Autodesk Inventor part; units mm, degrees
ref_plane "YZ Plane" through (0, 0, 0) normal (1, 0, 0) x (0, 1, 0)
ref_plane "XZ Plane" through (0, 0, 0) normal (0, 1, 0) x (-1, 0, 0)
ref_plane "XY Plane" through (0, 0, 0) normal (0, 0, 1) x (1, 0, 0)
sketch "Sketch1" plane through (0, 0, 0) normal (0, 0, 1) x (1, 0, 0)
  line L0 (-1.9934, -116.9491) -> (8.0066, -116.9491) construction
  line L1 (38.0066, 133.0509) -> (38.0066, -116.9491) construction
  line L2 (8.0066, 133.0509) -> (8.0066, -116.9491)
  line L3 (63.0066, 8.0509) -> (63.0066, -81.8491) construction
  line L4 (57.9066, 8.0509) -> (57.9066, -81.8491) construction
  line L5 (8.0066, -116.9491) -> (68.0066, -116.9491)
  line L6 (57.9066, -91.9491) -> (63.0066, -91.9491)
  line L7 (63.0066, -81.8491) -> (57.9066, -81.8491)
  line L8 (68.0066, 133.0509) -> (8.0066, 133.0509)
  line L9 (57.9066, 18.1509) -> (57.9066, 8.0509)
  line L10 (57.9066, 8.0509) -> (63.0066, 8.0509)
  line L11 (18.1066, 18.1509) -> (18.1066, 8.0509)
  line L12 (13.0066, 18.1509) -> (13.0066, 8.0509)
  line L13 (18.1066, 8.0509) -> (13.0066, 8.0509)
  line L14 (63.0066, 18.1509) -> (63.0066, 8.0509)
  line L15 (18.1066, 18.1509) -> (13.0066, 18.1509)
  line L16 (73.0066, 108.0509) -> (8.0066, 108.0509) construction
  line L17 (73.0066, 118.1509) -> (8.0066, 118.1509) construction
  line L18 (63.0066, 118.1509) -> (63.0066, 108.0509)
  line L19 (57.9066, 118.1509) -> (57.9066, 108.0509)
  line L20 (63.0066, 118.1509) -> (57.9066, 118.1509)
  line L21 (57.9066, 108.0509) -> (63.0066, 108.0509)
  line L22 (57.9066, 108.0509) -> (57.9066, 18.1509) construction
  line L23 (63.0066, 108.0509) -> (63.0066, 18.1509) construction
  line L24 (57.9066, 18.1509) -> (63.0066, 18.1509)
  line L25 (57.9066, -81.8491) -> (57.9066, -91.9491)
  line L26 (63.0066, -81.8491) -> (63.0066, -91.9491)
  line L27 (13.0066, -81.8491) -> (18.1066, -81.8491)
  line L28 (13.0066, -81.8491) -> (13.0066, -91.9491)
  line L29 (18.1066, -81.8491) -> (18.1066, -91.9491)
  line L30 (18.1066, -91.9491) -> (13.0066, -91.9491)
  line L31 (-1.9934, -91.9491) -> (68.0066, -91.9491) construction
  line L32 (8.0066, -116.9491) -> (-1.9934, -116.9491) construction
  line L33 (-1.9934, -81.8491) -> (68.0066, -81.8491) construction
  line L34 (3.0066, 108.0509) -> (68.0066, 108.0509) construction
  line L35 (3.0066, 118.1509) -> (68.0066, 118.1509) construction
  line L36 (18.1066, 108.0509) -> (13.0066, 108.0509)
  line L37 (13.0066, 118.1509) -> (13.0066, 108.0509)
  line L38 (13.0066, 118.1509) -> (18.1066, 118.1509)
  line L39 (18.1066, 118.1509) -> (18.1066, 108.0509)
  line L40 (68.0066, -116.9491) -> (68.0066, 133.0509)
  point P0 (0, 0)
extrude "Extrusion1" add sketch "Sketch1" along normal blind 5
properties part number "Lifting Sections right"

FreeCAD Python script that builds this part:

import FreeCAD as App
import Part
import Sketcher
Q = App.Units.Quantity

doc = App.newDocument("Part")
body = doc.addObject("PartDesign::Body", "Body")

# Sketch on XY plane
sketch1 = body.newObject("Sketcher::SketchObject", "Sketch")
sketch1.AttachmentSupport = (doc.getObject("XY_Plane"), [""])
sketch1.MapMode = "FlatFace"
sketch1.addGeometry(Part.LineSegment(App.Vector(68, 133, 0), App.Vector(8, 133, 0)), False)
sketch1.addGeometry(Part.LineSegment(App.Vector(8, 133, 0), App.Vector(8, -117, 0)), False)
sketch1.addGeometry(Part.LineSegment(App.Vector(8, -117, 0), App.Vector(68, -117, 0)), False)
sketch1.addGeometry(Part.LineSegment(App.Vector(68, -117, 0), App.Vector(68, 133, 0)), False)
sketch1.addGeometry(Part.LineSegment(App.Vector(13, -92, 0), App.Vector(13, -82, 0)), False)
sketch1.addGeometry(Part.LineSegment(App.Vector(13, -82, 0), App.Vector(18, -82, 0)), False)
sketch1.addGeometry(Part.LineSegment(App.Vector(18, -82, 0), App.Vector(18, -92, 0)), False)
sketch1.addGeometry(Part.LineSegment(App.Vector(18, -92, 0), App.Vector(13, -92, 0)), False)
sketch1.addGeometry(Part.LineSegment(App.Vector(63, -92, 0), App.Vector(58, -92, 0)), False)
sketch1.addGeometry(Part.LineSegment(App.Vector(58, -92, 0), App.Vector(58, -82, 0)), False)
sketch1.addGeometry(Part.LineSegment(App.Vector(58, -82, 0), App.Vector(63, -82, 0)), False)
sketch1.addGeometry(Part.LineSegment(App.Vector(63, -82, 0), App.Vector(63, -92, 0)), False)
sketch1.addGeometry(Part.LineSegment(App.Vector(13, 18, 0), App.Vector(18, 18, 0)), False)
sketch1.addGeometry(Part.LineSegment(App.Vector(18, 18, 0), App.Vector(18, 8, 0)), False)
sketch1.addGeometry(Part.LineSegment(App.Vector(18, 8, 0), App.Vector(13, 8, 0)), False)
sketch1.addGeometry(Part.LineSegment(App.Vector(13, 8, 0), App.Vector(13, 18, 0)), False)
sketch1.addGeometry(Part.LineSegment(App.Vector(18, 118, 0), App.Vector(18, 108, 0)), False)
sketch1.addGeometry(Part.LineSegment(App.Vector(18, 108, 0), App.Vector(13, 108, 0)), False)
sketch1.addGeometry(Part.LineSegment(App.Vector(13, 108, 0), App.Vector(13, 118, 0)), False)
sketch1.addGeometry(Part.LineSegment(App.Vector(13, 118, 0), App.Vector(18, 118, 0)), False)
sketch1.addGeometry(Part.LineSegment(App.Vector(58, 8, 0), App.Vector(58, 18, 0)), False)
sketch1.addGeometry(Part.LineSegment(App.Vector(58, 18, 0), App.Vector(63, 18, 0)), False)
sketch1.addGeometry(Part.LineSegment(App.Vector(63, 18, 0), App.Vector(63, 8, 0)), False)
sketch1.addGeometry(Part.LineSegment(App.Vector(63, 8, 0), App.Vector(58, 8, 0)), False)
sketch1.addGeometry(Part.LineSegment(App.Vector(58, 118, 0), App.Vector(63, 118, 0)), False)
sketch1.addGeometry(Part.LineSegment(App.Vector(63, 118, 0), App.Vector(63, 108, 0)), False)
sketch1.addGeometry(Part.LineSegment(App.Vector(63, 108, 0), App.Vector(58, 108, 0)), False)
sketch1.addGeometry(Part.LineSegment(App.Vector(58, 108, 0), App.Vector(58, 118, 0)), False)
sketch1.addConstraint(Sketcher.Constraint("Coincident", 0, 2, 1, 1))
sketch1.addConstraint(Sketcher.Constraint("Coincident", 1, 2, 2, 1))
sketch1.addConstraint(Sketcher.Constraint("Coincident", 2, 2, 3, 1))
sketch1.addConstraint(Sketcher.Constraint("Coincident", 3, 2, 0, 1))
sketch1.addConstraint(Sketcher.Constraint("Coincident", 4, 2, 5, 1))
sketch1.addConstraint(Sketcher.Constraint("Coincident", 5, 2, 6, 1))
sketch1.addConstraint(Sketcher.Constraint("Coincident", 6, 2, 7, 1))
sketch1.addConstraint(Sketcher.Constraint("Coincident", 7, 2, 4, 1))
sketch1.addConstraint(Sketcher.Constraint("Coincident", 8, 2, 9, 1))
sketch1.addConstraint(Sketcher.Constraint("Coincident", 9, 2, 10, 1))
sketch1.addConstraint(Sketcher.Constraint("Coincident", 10, 2, 11, 1))
sketch1.addConstraint(Sketcher.Constraint("Coincident", 11, 2, 8, 1))
sketch1.addConstraint(Sketcher.Constraint("Coincident", 12, 2, 13, 1))
sketch1.addConstraint(Sketcher.Constraint("Coincident", 13, 2, 14, 1))
sketch1.addConstraint(Sketcher.Constraint("Coincident", 14, 2, 15, 1))
sketch1.addConstraint(Sketcher.Constraint("Coincident", 15, 2, 12, 1))
sketch1.addConstraint(Sketcher.Constraint("Coincident", 16, 2, 17, 1))
sketch1.addConstraint(Sketcher.Constraint("Coincident", 17, 2, 18, 1))
sketch1.addConstraint(Sketcher.Constraint("Coincident", 18, 2, 19, 1))
sketch1.addConstraint(Sketcher.Constraint("Coincident", 19, 2, 16, 1))
sketch1.addConstraint(Sketcher.Constraint("Coincident", 20, 2, 21, 1))
sketch1.addConstraint(Sketcher.Constraint("Coincident", 21, 2, 22, 1))
sketch1.addConstraint(Sketcher.Constraint("Coincident", 22, 2, 23, 1))
sketch1.addConstraint(Sketcher.Constraint("Coincident", 23, 2, 20, 1))
sketch1.addConstraint(Sketcher.Constraint("Coincident", 24, 2, 25, 1))
sketch1.addConstraint(Sketcher.Constraint("Coincident", 25, 2, 26, 1))
sketch1.addConstraint(Sketcher.Constraint("Coincident", 26, 2, 27, 1))
sketch1.addConstraint(Sketcher.Constraint("Coincident", 27, 2, 24, 1))
sketch1.addConstraint(Sketcher.Constraint("Horizontal", 0))
sketch1.addConstraint(Sketcher.Constraint("Vertical", 1))
sketch1.addConstraint(Sketcher.Constraint("Horizontal", 2))
sketch1.addConstraint(Sketcher.Constraint("Vertical", 3))
sketch1.addConstraint(Sketcher.Constraint("Vertical", 4))
sketch1.addConstraint(Sketcher.Constraint("Horizontal", 5))
sketch1.addConstraint(Sketcher.Constraint("Vertical", 6))
sketch1.addConstraint(Sketcher.Constraint("Horizontal", 7))
sketch1.addConstraint(Sketcher.Constraint("Horizontal", 8))
sketch1.addConstraint(Sketcher.Constraint("Vertical", 9))
sketch1.addConstraint(Sketcher.Constraint("Horizontal", 10))
sketch1.addConstraint(Sketcher.Constraint("Vertical", 11))
sketch1.addConstraint(Sketcher.Constraint("Horizontal", 12))
sketch1.addConstraint(Sketcher.Constraint("Vertical", 13))
sketch1.addConstraint(Sketcher.Constraint("Horizontal", 14))
sketch1.addConstraint(Sketcher.Constraint("Vertical", 15))
sketch1.addConstraint(Sketcher.Constraint("Vertical", 16))
sketch1.addConstraint(Sketcher.Constraint("Horizontal", 17))
sketch1.addConstraint(Sketcher.Constraint("Vertical", 18))
sketch1.addConstraint(Sketcher.Constraint("Horizontal", 19))
sketch1.addConstraint(Sketcher.Constraint("Vertical", 20))
sketch1.addConstraint(Sketcher.Constraint("Horizontal", 21))
sketch1.addConstraint(Sketcher.Constraint("Vertical", 22))
sketch1.addConstraint(Sketcher.Constraint("Horizontal", 23))
sketch1.addConstraint(Sketcher.Constraint("Horizontal", 24))
sketch1.addConstraint(Sketcher.Constraint("Vertical", 25))
sketch1.addConstraint(Sketcher.Constraint("Horizontal", 26))
sketch1.addConstraint(Sketcher.Constraint("Vertical", 27))
sketch1.addConstraint(Sketcher.Constraint("Horizontal", 7, 2, 8, 2))
sketch1.addConstraint(Sketcher.Constraint("Horizontal", 5, 2, 9, 2))
sketch1.addConstraint(Sketcher.Constraint("Horizontal", 15, 2, 20, 2))
sketch1.addConstraint(Sketcher.Constraint("Horizontal", 14, 2, 22, 2))
sketch1.addConstraint(Sketcher.Constraint("Horizontal", 19, 2, 24, 2))
sketch1.addConstraint(Sketcher.Constraint("Horizontal", 17, 2, 25, 2))
sketch1.addConstraint(Sketcher.Constraint("Vertical", 6, 2, 12, 2))
sketch1.addConstraint(Sketcher.Constraint("Vertical", 7, 2, 14, 2))
sketch1.addConstraint(Sketcher.Constraint("Vertical", 13, 2, 16, 2))
sketch1.addConstraint(Sketcher.Constraint("Vertical", 15, 2, 17, 2))
sketch1.addConstraint(Sketcher.Constraint("Vertical", 9, 2, 20, 2))
sketch1.addConstraint(Sketcher.Constraint("Vertical", 11, 2, 21, 2))
sketch1.addConstraint(Sketcher.Constraint("Vertical", 22, 2, 24, 2))
sketch1.addConstraint(Sketcher.Constraint("Vertical", 23, 2, 26, 2))
sketch1.addConstraint(Sketcher.Constraint("Equal", 7, 8))
sketch1.addConstraint(Sketcher.Constraint("Equal", 11, 13))
sketch1.addConstraint(Sketcher.Constraint("Equal", 15, 16))
sketch1.addConstraint(Sketcher.Constraint("DistanceX", 0, 2, 0, 1, Q("60 mm")))
sketch1.addConstraint(Sketcher.Constraint("DistanceY", 1, 2, 1, 1, Q("250 mm")))
sketch1.addConstraint(Sketcher.Constraint("DistanceX", 5, 1, 5, 2, Q("5.1 mm")))
sketch1.addConstraint(Sketcher.Constraint("DistanceY", 4, 1, 4, 2, Q("10.1 mm")))
sketch1.addConstraint(Sketcher.Constraint("DistanceX", 1, 2, 4, 2, Q("5 mm")))
sketch1.addConstraint(Sketcher.Constraint("DistanceY", 1, 2, 6, 2, Q("25 mm")))
sketch1.addConstraint(Sketcher.Constraint("DistanceX", 10, 2, 2, 2, Q("5 mm")))
sketch1.addConstraint(Sketcher.Constraint("DistanceY", 5, 2, 12, 2, Q("100 mm")))
sketch1.addConstraint(Sketcher.Constraint("DistanceY", 16, 2, 0, 2, Q("25 mm")))
sketch1.addConstraint(Sketcher.Constraint("DistanceY", -1, 1, 0, 2, Q("133.051 mm")))
sketch1.addConstraint(Sketcher.Constraint("DistanceX", -1, 1, 0, 2, Q("8.0066 mm")))
pad1 = body.newObject("PartDesign::Pad", "Pad")
pad1.Profile = sketch1
pad1.Length = 5

doc.recompute()
